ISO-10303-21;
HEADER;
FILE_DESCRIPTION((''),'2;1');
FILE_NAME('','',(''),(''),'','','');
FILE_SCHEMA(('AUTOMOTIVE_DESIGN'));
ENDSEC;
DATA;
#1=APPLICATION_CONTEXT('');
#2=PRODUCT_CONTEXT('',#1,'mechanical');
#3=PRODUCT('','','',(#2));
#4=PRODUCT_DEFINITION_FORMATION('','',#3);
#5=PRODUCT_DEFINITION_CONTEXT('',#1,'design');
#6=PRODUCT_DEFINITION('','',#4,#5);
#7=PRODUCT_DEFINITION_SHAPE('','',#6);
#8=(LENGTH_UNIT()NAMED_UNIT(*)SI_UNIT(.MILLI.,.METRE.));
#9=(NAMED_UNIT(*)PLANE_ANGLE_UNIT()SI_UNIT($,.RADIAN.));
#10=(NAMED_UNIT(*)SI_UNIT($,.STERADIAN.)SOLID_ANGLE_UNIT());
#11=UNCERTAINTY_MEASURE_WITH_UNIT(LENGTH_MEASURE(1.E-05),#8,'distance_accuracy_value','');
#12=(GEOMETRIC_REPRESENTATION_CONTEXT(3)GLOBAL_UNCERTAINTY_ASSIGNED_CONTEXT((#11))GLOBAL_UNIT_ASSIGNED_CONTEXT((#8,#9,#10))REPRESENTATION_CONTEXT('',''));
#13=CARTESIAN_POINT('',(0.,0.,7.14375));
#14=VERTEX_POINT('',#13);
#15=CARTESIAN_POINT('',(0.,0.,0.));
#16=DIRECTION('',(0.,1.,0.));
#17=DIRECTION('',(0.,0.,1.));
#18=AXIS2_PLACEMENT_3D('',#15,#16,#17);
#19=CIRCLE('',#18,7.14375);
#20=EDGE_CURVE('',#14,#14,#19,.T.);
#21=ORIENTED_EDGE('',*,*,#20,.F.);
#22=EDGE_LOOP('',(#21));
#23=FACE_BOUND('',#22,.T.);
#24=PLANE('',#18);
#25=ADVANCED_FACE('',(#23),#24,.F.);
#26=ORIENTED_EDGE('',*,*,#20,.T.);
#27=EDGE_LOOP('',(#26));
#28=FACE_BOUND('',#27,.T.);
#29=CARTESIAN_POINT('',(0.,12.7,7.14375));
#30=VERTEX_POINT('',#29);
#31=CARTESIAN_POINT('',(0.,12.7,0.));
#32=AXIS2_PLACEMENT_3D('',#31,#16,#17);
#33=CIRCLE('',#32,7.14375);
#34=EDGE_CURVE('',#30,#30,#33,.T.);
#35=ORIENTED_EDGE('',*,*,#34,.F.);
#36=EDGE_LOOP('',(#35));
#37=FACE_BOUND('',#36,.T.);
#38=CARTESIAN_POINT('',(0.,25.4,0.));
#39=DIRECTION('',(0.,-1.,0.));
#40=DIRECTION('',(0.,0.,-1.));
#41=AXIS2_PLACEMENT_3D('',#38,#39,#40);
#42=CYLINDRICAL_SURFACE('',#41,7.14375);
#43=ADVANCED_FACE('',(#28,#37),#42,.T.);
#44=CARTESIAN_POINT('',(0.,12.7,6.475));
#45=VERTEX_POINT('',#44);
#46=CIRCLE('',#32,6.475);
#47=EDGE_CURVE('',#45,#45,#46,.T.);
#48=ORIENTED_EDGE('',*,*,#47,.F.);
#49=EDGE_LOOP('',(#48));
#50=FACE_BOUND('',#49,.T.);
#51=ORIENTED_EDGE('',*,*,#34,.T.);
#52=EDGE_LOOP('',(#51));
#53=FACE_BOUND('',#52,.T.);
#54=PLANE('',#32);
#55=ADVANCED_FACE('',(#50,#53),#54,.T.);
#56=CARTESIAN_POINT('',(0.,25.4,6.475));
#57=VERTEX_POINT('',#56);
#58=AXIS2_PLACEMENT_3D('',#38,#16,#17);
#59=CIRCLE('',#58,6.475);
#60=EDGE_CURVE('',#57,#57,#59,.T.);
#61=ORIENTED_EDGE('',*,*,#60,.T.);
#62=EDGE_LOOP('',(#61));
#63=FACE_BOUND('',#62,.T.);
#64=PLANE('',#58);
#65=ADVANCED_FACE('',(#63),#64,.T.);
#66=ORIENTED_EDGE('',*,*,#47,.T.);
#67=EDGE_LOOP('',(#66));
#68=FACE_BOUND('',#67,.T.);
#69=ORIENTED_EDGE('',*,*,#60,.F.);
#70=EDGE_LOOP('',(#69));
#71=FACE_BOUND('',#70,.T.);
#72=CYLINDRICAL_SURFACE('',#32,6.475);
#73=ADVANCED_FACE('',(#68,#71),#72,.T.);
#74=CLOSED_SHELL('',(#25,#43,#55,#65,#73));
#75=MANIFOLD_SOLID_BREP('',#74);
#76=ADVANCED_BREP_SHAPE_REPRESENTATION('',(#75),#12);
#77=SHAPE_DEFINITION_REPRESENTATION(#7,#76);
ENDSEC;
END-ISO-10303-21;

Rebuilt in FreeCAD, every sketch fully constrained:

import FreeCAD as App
import Part
import Sketcher

V = App.Vector
Q = App.Units.Quantity

doc = App.newDocument("Part")
body = doc.addObject("PartDesign::Body", "Body")

# Sketch on XZ plane
sketch1 = doc.addObject("Sketcher::SketchObject", "Sketch")
body.addObject(sketch1)
sketch1.AttachmentSupport = (doc.XZ_Plane, [""])
sketch1.MapMode = "FlatFace"
sketch1.addGeometry(Part.Circle(V(0, 0, 0), V(0, 0, 1), 7.14375), False)
sketch1.addConstraint([
    Sketcher.Constraint("Coincident", 0, 3, -1, 1),
    Sketcher.Constraint("Diameter", 0, Q("0.5625 in")),
])
pad1 = doc.addObject("PartDesign::Pad", "Pad")
body.addObject(pad1)
pad1.Profile = sketch1
pad1.Length = Q("1 in")
pad1.Reversed = True

# Sketch on XZ plane
sketch2 = doc.addObject("Sketcher::SketchObject", "Sketch001")
body.addObject(sketch2)
sketch2.AttachmentSupport = (doc.XZ_Plane, [""])
sketch2.MapMode = "FlatFace"
sketch2.AttachmentOffset = App.Placement(V(0, 0, -1 * 25.4), App.Rotation())
sketch2.addGeometry([
    Part.Circle(V(0, 0, 0), V(0, 0, 1), 7.836157),
    Part.Circle(V(0, 0, 0), V(0, 0, 1), 6.475),
], False)
sketch2.addConstraint([
    Sketcher.Constraint("Coincident", 0, 3, -1, 1),
    Sketcher.Constraint("Coincident", 1, 3, -1, 1),
    Sketcher.Constraint("Diameter", 1, 12.95),
    Sketcher.Constraint("Diameter", 0, 15.672314),
])
pocket1 = doc.addObject("PartDesign::Pocket", "Pocket")
body.addObject(pocket1)
pocket1.Profile = sketch2
pocket1.Length = Q("0.5 in")
pocket1.Reversed = True

doc.recompute()
